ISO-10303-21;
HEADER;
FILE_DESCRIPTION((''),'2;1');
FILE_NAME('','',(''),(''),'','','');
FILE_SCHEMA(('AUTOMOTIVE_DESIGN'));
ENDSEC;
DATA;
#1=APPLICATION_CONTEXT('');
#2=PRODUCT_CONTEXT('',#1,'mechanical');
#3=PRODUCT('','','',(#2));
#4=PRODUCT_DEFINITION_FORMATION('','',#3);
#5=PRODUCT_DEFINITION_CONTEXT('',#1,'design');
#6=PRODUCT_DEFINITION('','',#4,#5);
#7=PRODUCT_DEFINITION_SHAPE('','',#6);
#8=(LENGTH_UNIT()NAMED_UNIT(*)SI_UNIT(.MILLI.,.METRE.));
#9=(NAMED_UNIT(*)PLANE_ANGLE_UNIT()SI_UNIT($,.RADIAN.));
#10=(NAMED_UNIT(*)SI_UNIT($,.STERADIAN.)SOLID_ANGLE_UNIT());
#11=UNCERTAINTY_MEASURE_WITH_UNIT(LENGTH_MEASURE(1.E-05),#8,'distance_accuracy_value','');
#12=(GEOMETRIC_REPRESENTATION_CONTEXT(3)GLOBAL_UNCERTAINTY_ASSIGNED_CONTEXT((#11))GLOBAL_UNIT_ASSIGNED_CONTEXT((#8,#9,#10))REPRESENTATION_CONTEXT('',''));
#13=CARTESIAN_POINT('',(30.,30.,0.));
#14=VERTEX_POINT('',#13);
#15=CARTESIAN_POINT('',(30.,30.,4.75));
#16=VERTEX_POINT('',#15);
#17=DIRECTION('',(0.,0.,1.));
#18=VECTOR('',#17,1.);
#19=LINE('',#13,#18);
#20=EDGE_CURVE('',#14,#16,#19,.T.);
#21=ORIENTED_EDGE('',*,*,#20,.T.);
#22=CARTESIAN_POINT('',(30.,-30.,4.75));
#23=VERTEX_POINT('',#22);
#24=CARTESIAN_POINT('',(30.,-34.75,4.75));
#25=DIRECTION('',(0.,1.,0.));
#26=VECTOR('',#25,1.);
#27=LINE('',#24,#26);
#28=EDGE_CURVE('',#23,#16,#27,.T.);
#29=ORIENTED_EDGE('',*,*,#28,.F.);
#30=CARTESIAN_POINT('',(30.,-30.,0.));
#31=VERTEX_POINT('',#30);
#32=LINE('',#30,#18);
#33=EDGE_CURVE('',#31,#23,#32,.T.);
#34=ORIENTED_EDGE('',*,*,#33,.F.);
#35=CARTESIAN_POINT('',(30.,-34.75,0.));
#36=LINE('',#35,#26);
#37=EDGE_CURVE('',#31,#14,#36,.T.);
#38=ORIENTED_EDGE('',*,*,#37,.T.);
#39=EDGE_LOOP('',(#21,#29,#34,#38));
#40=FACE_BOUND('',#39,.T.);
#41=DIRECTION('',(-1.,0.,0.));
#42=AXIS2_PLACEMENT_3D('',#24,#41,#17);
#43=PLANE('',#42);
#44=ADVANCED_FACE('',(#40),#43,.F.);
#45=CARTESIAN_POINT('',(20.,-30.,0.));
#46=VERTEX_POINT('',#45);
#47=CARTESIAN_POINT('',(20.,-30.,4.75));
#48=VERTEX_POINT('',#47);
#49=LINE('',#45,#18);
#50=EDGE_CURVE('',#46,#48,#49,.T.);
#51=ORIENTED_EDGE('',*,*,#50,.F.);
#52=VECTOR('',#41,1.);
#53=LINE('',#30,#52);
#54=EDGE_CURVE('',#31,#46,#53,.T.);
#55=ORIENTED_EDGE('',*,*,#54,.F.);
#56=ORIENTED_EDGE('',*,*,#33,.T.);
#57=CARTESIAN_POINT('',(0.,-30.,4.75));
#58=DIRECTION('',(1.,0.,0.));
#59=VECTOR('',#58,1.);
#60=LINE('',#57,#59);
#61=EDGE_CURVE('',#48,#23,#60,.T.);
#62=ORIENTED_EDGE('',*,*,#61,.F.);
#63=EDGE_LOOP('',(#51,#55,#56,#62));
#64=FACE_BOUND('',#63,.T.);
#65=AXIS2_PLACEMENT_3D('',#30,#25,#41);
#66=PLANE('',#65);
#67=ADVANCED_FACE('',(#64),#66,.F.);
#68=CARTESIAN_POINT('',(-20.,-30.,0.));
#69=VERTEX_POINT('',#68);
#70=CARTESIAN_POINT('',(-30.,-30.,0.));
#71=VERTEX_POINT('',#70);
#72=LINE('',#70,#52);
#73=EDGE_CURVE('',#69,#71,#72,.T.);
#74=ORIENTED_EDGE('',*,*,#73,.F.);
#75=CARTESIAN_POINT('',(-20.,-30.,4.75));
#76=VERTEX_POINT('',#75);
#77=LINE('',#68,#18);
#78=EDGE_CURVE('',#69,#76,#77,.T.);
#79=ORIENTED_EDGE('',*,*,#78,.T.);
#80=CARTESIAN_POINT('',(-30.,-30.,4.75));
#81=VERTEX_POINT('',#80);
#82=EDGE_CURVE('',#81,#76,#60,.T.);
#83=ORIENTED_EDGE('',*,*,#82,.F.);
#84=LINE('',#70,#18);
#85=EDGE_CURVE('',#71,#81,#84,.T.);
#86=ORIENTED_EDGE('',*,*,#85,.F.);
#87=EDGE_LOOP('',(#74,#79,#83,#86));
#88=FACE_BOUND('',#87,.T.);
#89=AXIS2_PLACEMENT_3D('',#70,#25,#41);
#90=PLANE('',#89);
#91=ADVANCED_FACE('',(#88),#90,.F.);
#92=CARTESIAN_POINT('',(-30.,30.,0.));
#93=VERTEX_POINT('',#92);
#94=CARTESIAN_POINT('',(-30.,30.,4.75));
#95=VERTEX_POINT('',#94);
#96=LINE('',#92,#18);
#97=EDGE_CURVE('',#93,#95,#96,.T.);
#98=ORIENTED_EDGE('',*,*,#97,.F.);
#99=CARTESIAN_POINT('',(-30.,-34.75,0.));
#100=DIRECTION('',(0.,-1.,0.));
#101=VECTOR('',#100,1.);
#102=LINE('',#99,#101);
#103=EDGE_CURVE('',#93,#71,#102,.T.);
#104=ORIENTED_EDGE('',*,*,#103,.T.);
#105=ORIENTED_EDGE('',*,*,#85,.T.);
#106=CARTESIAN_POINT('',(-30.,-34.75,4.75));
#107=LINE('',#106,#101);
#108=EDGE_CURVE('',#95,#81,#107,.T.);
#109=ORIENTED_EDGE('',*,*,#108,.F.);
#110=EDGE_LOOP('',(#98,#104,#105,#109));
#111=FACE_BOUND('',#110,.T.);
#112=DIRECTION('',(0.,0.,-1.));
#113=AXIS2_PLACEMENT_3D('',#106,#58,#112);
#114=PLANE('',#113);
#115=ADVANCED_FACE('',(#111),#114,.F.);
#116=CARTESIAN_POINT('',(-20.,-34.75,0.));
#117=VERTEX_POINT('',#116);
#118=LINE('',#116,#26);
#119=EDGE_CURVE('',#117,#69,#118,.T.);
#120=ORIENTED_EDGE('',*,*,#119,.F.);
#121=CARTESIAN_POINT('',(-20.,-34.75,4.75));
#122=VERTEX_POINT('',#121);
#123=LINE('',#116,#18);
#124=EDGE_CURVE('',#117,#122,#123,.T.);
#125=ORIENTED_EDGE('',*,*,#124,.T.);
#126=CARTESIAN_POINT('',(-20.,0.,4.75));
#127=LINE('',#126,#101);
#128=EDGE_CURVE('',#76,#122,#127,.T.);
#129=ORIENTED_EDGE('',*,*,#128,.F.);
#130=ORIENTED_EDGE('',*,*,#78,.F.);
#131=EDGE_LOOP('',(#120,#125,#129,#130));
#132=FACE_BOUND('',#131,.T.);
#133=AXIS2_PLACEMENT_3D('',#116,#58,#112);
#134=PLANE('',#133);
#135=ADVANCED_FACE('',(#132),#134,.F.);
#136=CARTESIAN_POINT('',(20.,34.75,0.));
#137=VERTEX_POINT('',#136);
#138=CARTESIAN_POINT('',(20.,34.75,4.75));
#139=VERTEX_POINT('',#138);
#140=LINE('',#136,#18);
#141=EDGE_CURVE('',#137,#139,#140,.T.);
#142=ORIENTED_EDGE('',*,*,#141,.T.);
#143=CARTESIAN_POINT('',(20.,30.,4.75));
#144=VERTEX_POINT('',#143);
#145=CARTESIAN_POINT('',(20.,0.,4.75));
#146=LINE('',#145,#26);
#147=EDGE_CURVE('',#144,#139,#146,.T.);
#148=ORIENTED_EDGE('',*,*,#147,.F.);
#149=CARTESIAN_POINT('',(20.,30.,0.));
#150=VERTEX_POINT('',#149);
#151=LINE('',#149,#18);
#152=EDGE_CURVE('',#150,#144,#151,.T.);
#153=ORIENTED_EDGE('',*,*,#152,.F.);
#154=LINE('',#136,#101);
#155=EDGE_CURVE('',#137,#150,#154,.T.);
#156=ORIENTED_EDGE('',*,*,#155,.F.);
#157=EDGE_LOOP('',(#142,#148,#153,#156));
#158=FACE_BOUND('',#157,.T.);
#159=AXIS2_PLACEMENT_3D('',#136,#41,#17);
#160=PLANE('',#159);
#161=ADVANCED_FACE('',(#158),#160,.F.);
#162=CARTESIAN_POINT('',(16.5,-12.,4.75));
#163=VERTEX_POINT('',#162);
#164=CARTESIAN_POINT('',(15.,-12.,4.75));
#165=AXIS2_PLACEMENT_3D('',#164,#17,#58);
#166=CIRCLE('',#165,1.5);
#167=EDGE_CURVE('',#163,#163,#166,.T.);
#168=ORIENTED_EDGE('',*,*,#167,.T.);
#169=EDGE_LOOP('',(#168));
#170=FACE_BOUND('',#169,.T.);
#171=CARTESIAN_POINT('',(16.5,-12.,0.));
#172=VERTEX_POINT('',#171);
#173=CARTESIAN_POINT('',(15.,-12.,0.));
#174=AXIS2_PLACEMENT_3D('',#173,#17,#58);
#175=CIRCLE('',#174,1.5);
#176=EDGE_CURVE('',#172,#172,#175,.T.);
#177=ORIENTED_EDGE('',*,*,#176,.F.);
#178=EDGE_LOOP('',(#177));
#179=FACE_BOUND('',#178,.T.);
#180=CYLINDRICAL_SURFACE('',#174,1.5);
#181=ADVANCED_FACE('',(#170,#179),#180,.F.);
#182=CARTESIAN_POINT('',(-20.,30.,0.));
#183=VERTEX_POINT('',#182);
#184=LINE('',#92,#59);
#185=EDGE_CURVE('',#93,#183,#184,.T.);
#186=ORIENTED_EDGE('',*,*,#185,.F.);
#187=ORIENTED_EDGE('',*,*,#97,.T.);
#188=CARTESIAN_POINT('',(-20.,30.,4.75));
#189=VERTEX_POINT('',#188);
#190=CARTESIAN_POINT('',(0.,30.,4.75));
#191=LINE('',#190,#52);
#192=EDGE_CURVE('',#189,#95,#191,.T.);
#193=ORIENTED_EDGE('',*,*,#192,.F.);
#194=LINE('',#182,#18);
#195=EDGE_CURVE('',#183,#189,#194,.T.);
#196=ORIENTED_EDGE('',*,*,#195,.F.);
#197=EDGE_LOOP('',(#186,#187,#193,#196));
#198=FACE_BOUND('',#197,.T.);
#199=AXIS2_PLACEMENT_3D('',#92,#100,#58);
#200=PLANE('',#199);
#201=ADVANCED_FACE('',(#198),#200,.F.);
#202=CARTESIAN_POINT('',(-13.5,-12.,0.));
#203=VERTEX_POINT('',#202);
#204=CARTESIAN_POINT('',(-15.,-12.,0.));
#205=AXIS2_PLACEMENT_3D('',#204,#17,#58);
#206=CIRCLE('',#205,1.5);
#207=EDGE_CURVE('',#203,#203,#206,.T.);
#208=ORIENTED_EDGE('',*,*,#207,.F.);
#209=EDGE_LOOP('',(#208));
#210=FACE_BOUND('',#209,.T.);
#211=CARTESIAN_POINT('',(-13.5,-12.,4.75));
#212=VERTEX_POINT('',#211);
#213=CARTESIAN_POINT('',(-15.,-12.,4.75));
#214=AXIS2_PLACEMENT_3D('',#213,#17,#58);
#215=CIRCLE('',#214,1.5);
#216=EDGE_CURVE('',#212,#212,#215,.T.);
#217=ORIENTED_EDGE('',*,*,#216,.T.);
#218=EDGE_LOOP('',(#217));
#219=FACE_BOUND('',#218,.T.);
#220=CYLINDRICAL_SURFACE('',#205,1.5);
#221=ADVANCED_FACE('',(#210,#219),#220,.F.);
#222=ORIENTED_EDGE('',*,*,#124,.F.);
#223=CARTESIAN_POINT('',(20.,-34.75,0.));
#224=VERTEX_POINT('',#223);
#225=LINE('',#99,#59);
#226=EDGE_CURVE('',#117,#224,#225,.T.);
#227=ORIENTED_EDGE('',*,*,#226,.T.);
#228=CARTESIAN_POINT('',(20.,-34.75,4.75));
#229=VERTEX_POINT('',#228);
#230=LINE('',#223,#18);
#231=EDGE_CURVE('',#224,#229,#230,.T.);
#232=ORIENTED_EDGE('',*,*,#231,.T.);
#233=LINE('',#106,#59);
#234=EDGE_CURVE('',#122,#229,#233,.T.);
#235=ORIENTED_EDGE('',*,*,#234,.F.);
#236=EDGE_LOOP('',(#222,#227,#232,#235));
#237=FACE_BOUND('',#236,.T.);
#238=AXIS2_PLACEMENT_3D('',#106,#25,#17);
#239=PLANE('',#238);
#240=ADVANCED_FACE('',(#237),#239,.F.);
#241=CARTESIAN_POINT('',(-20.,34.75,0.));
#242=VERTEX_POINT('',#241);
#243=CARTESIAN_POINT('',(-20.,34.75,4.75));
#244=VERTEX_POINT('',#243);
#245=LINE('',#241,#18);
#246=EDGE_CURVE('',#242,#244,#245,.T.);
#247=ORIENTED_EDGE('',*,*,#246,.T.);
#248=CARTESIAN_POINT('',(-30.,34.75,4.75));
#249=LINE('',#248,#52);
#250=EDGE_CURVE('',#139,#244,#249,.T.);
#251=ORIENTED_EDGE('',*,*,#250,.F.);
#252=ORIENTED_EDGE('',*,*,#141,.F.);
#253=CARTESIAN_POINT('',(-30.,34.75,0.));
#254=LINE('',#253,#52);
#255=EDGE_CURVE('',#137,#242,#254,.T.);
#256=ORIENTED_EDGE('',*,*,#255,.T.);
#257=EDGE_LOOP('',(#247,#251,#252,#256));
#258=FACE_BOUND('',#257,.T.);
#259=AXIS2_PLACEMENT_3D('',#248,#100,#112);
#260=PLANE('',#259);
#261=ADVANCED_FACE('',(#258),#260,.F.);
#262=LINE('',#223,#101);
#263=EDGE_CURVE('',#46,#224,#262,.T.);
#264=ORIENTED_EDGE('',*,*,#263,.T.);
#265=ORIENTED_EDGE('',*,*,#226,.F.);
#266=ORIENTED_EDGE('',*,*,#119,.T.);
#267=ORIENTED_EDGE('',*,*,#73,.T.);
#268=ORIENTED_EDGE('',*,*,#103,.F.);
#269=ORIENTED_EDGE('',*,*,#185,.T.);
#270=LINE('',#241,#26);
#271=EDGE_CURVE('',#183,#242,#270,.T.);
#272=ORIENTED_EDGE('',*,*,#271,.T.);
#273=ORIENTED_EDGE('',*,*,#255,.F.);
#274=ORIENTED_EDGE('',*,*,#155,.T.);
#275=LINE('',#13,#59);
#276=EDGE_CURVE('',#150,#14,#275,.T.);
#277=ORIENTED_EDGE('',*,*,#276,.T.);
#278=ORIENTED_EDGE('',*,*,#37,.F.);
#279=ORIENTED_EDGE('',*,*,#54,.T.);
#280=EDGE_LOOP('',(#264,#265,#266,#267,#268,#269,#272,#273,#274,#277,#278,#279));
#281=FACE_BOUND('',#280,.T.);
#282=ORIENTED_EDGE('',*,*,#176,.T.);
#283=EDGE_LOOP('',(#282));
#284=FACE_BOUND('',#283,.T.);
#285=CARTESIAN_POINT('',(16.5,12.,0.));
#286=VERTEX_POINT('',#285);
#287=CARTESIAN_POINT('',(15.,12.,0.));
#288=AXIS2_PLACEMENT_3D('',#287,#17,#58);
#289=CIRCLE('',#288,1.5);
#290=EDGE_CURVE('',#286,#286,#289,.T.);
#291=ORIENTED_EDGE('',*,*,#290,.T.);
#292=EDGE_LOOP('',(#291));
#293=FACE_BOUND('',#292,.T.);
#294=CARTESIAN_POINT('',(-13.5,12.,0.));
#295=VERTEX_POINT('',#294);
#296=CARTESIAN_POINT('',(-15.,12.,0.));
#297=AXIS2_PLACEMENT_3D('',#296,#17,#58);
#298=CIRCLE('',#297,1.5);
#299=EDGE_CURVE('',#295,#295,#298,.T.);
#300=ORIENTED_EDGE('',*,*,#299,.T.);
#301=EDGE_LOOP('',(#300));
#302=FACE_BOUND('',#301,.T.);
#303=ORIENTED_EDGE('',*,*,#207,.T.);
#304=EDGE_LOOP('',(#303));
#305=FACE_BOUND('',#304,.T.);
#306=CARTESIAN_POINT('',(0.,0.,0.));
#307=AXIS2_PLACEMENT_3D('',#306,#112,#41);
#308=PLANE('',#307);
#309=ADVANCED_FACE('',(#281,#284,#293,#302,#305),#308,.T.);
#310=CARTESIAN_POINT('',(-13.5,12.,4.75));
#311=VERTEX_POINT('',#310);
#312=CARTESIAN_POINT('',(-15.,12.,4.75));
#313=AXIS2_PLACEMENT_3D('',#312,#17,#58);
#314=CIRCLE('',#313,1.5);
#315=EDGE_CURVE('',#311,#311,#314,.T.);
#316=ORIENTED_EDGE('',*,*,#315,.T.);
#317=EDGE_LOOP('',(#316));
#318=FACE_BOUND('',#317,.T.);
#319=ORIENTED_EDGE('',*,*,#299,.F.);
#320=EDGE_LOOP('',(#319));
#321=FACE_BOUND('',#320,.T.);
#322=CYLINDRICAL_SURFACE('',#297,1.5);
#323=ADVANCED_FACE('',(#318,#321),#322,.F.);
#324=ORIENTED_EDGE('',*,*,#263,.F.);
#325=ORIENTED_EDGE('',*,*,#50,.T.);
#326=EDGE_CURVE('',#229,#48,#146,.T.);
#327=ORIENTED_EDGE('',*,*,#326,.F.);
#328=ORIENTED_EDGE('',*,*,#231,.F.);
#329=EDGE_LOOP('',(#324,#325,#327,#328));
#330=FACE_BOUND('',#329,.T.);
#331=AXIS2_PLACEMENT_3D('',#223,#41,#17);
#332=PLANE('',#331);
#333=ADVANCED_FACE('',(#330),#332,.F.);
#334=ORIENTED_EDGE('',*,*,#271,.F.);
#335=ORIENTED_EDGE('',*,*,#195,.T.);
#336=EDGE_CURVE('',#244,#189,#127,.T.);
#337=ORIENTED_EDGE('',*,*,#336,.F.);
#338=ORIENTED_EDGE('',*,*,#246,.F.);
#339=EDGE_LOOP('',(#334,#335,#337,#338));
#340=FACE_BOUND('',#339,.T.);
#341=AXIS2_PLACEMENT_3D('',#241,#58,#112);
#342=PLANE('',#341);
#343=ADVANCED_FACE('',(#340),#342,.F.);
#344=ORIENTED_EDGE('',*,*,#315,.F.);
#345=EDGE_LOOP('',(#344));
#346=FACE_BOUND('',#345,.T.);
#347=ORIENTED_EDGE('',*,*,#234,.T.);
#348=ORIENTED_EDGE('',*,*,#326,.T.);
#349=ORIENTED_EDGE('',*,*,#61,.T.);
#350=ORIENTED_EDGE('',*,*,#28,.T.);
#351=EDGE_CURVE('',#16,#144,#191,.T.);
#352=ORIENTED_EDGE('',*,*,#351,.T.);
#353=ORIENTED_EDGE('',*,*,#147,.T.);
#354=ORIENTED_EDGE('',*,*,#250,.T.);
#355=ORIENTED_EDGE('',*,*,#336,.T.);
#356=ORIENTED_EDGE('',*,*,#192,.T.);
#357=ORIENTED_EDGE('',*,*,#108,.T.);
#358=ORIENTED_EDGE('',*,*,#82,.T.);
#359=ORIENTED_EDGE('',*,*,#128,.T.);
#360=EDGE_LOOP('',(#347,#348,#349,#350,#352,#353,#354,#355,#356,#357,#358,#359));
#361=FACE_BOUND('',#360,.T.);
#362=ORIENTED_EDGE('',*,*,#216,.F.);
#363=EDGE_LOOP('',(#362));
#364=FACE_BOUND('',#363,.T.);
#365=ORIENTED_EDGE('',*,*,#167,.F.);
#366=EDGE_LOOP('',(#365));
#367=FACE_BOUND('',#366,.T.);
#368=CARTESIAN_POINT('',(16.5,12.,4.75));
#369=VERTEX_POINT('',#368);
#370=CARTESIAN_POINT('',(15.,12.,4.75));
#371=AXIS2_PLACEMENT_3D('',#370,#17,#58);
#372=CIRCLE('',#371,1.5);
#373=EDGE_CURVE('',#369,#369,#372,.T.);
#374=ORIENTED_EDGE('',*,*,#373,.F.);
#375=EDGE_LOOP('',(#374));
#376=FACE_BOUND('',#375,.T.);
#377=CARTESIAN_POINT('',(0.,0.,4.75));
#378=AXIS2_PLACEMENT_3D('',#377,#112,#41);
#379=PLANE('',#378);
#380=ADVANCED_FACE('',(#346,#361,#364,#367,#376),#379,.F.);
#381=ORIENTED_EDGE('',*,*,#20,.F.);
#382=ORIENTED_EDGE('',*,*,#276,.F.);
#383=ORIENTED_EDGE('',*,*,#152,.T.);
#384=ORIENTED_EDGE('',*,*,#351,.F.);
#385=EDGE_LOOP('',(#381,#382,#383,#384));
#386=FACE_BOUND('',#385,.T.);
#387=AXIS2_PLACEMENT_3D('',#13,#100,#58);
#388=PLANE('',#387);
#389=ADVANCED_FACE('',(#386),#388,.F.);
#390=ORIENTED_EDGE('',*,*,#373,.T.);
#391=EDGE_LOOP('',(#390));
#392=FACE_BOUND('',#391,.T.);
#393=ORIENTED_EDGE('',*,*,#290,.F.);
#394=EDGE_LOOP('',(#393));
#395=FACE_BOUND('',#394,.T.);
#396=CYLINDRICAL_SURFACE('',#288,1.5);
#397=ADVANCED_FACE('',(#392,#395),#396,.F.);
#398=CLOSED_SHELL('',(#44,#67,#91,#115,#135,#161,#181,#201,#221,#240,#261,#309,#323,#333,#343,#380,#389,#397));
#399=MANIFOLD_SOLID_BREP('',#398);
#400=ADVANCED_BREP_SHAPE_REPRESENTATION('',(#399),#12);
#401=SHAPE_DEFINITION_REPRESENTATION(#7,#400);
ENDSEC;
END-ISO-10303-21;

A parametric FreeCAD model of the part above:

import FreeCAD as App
import Part
import Sketcher
Q = App.Units.Quantity

doc = App.newDocument("Part")
body = doc.addObject("PartDesign::Body", "Body")

sketch1 = body.newObject("Sketcher::SketchObject", "Sketch")
sketch1.AttachmentSupport = (doc.getObject("XY_Plane"), [""])
sketch1.MapMode = "FlatFace"
sketch1.addGeometry(Part.LineSegment(App.Vector(-30, 34.75, 0), App.Vector(-30, -34.75, 0)), False)
sketch1.addGeometry(Part.LineSegment(App.Vector(-30, -34.75, 0), App.Vector(30, -34.75, 0)), False)
sketch1.addGeometry(Part.LineSegment(App.Vector(30, -34.75, 0), App.Vector(30, 34.75, 0)), False)
sketch1.addGeometry(Part.LineSegment(App.Vector(30, 34.75, 0), App.Vector(-30, 34.75, 0)), False)
sketch1.addConstraint(Sketcher.Constraint("Coincident", 0, 2, 1, 1))
sketch1.addConstraint(Sketcher.Constraint("Coincident", 1, 2, 2, 1))
sketch1.addConstraint(Sketcher.Constraint("Coincident", 2, 2, 3, 1))
sketch1.addConstraint(Sketcher.Constraint("Coincident", 3, 2, 0, 1))
sketch1.addConstraint(Sketcher.Constraint("Vertical", 0))
sketch1.addConstraint(Sketcher.Constraint("Horizontal", 1))
sketch1.addConstraint(Sketcher.Constraint("Vertical", 2))
sketch1.addConstraint(Sketcher.Constraint("Horizontal", 3))
sketch1.addConstraint(Sketcher.Constraint("Symmetric", 0, 2, 2, 2, -1, 1))
sketch1.addConstraint(Sketcher.Constraint("DistanceX", 1, 1, 1, 2, Q("60 mm")))
sketch1.addConstraint(Sketcher.Constraint("DistanceY", 0, 2, 0, 1, Q("69.5 mm")))
pad1 = body.newObject("PartDesign::Pad", "Pad")
pad1.Profile = sketch1
pad1.Length = 4.75

sketch2 = body.newObject("Sketcher::SketchObject", "Sketch001")
sketch2.AttachmentSupport = (doc.getObject("XY_Plane"), [""])
sketch2.MapMode = "FlatFace"
sketch2.AttachmentOffset = App.Placement(App.Vector(0, 0, 4.75), App.Rotation())
sketch2.addGeometry(Part.LineSegment(App.Vector(-30, 34.75, 0), App.Vector(-30, 30, 0)), False)
sketch2.addGeometry(Part.LineSegment(App.Vector(-30, 30, 0), App.Vector(-20, 30, 0)), False)
sketch2.addGeometry(Part.LineSegment(App.Vector(-20, 30, 0), App.Vector(-20, 34.75, 0)), False)
sketch2.addGeometry(Part.LineSegment(App.Vector(-20, 34.75, 0), App.Vector(-30, 34.75, 0)), False)
sketch2.addGeometry(Part.LineSegment(App.Vector(-30, -30, 0), App.Vector(-30, -34.75, 0)), False)
sketch2.addGeometry(Part.LineSegment(App.Vector(-30, -34.75, 0), App.Vector(-20, -34.75, 0)), False)
sketch2.addGeometry(Part.LineSegment(App.Vector(-20, -34.75, 0), App.Vector(-20, -30, 0)), False)
sketch2.addGeometry(Part.LineSegment(App.Vector(-20, -30, 0), App.Vector(-30, -30, 0)), False)
sketch2.addGeometry(Part.LineSegment(App.Vector(20, -30, 0), App.Vector(20, -34.75, 0)), False)
sketch2.addGeometry(Part.LineSegment(App.Vector(20, -34.75, 0), App.Vector(30, -34.75, 0)), False)
sketch2.addGeometry(Part.LineSegment(App.Vector(30, -34.75, 0), App.Vector(30, -30, 0)), False)
sketch2.addGeometry(Part.LineSegment(App.Vector(30, -30, 0), App.Vector(20, -30, 0)), False)
sketch2.addGeometry(Part.LineSegment(App.Vector(20, 34.75, 0), App.Vector(20, 30, 0)), False)
sketch2.addGeometry(Part.LineSegment(App.Vector(20, 30, 0), App.Vector(30, 30, 0)), False)
sketch2.addGeometry(Part.LineSegment(App.Vector(30, 30, 0), App.Vector(30, 34.75, 0)), False)
sketch2.addGeometry(Part.LineSegment(App.Vector(30, 34.75, 0), App.Vector(20, 34.75, 0)), False)
sketch2.addConstraint(Sketcher.Constraint("Coincident", 0, 2, 1, 1))
sketch2.addConstraint(Sketcher.Constraint("Coincident", 1, 2, 2, 1))
sketch2.addConstraint(Sketcher.Constraint("Coincident", 2, 2, 3, 1))
sketch2.addConstraint(Sketcher.Constraint("Coincident", 3, 2, 0, 1))
sketch2.addConstraint(Sketcher.Constraint("Coincident", 4, 2, 5, 1))
sketch2.addConstraint(Sketcher.Constraint("Coincident", 5, 2, 6, 1))
sketch2.addConstraint(Sketcher.Constraint("Coincident", 6, 2, 7, 1))
sketch2.addConstraint(Sketcher.Constraint("Coincident", 7, 2, 4, 1))
sketch2.addConstraint(Sketcher.Constraint("Coincident", 8, 2, 9, 1))
sketch2.addConstraint(Sketcher.Constraint("Coincident", 9, 2, 10, 1))
sketch2.addConstraint(Sketcher.Constraint("Coincident", 10, 2, 11, 1))
sketch2.addConstraint(Sketcher.Constraint("Coincident", 11, 2, 8, 1))
sketch2.addConstraint(Sketcher.Constraint("Coincident", 12, 2, 13, 1))
sketch2.addConstraint(Sketcher.Constraint("Coincident", 13, 2, 14, 1))
sketch2.addConstraint(Sketcher.Constraint("Coincident", 14, 2, 15, 1))
sketch2.addConstraint(Sketcher.Constraint("Coincident", 15, 2, 12, 1))
sketch2.addConstraint(Sketcher.Constraint("Vertical", 0))
sketch2.addConstraint(Sketcher.Constraint("Horizontal", 1))
sketch2.addConstraint(Sketcher.Constraint("Vertical", 2))
sketch2.addConstraint(Sketcher.Constraint("Horizontal", 3))
sketch2.addConstraint(Sketcher.Constraint("Vertical", 4))
sketch2.addConstraint(Sketcher.Constraint("Horizontal", 5))
sketch2.addConstraint(Sketcher.Constraint("Vertical", 6))
sketch2.addConstraint(Sketcher.Constraint("Horizontal", 7))
sketch2.addConstraint(Sketcher.Constraint("Vertical", 8))
sketch2.addConstraint(Sketcher.Constraint("Horizontal", 9))
sketch2.addConstraint(Sketcher.Constraint("Vertical", 10))
sketch2.addConstraint(Sketcher.Constraint("Horizontal", 11))
sketch2.addConstraint(Sketcher.Constraint("Vertical", 12))
sketch2.addConstraint(Sketcher.Constraint("Horizontal", 13))
sketch2.addConstraint(Sketcher.Constraint("Vertical", 14))
sketch2.addConstraint(Sketcher.Constraint("Horizontal", 15))
sketch2.addConstraint(Sketcher.Constraint("Symmetric", 2, 2, 8, 2, -1, 1))
sketch2.addConstraint(Sketcher.Constraint("Symmetric", 0, 2, 10, 2, -1, 1))
sketch2.addConstraint(Sketcher.Constraint("Symmetric", 6, 2, 12, 2, -1, 1))
sketch2.addConstraint(Sketcher.Constraint("Symmetric", 4, 2, 14, 2, -1, 1))
sketch2.addConstraint(Sketcher.Constraint("Symmetric", 5, 2, 8, 2, -2))
sketch2.addConstraint(Sketcher.Constraint("Symmetric", 7, 2, 10, 2, -2))
sketch2.addConstraint(Sketcher.Constraint("DistanceX", 1, 1, 1, 2, Q("10 mm")))
sketch2.addConstraint(Sketcher.Constraint("DistanceX", 0, 2, -1, 1, Q("30 mm")))
sketch2.addConstraint(Sketcher.Constraint("DistanceY", -1, 1, 0, 2, Q("30 mm")))
sketch2.addConstraint(Sketcher.Constraint("DistanceY", 0, 2, 0, 1, Q("4.75 mm")))
pocket1 = body.newObject("PartDesign::Pocket", "Pocket")
pocket1.Profile = sketch2
pocket1.Type = "ThroughAll"
pocket1.Midplane = True

sketch3 = body.newObject("Sketcher::SketchObject", "Sketch002")
sketch3.AttachmentSupport = (doc.getObject("XY_Plane"), [""])
sketch3.MapMode = "FlatFace"
sketch3.AttachmentOffset = App.Placement(App.Vector(0, 0, 4.75), App.Rotation())
sketch3.addGeometry(Part.Circle(App.Vector(-15, 12, 0), App.Vector(0, 0, 1), 1.5), False)
sketch3.addGeometry(Part.Circle(App.Vector(-15, -12, 0), App.Vector(0, 0, 1), 1.5), False)
sketch3.addGeometry(Part.Circle(App.Vector(15, -12, 0), App.Vector(0, 0, 1), 1.5), False)
sketch3.addGeometry(Part.Circle(App.Vector(15, 12, 0), App.Vector(0, 0, 1), 1.5), False)
sketch3.addConstraint(Sketcher.Constraint("Equal", 0, 1))
sketch3.addConstraint(Sketcher.Constraint("Equal", 1, 2))
sketch3.addConstraint(Sketcher.Constraint("Equal", 2, 3))
sketch3.addConstraint(Sketcher.Constraint("Symmetric", 0, 3, 2, 3, -1, 1))
sketch3.addConstraint(Sketcher.Constraint("Symmetric", 1, 3, 3, 3, -1, 1))
sketch3.addConstraint(Sketcher.Constraint("Symmetric", 1, 3, 2, 3, -2))
sketch3.addConstraint(Sketcher.Constraint("Diameter", 0, Q("3 mm")))
sketch3.addConstraint(Sketcher.Constraint("DistanceX", 0, 3, -1, 1, Q("15 mm")))
sketch3.addConstraint(Sketcher.Constraint("DistanceY", -1, 1, 0, 3, Q("12 mm")))
pocket2 = body.newObject("PartDesign::Pocket", "Pocket001")
pocket2.Profile = sketch3
pocket2.Type = "ThroughAll"
pocket2.Midplane = True

doc.recompute()
